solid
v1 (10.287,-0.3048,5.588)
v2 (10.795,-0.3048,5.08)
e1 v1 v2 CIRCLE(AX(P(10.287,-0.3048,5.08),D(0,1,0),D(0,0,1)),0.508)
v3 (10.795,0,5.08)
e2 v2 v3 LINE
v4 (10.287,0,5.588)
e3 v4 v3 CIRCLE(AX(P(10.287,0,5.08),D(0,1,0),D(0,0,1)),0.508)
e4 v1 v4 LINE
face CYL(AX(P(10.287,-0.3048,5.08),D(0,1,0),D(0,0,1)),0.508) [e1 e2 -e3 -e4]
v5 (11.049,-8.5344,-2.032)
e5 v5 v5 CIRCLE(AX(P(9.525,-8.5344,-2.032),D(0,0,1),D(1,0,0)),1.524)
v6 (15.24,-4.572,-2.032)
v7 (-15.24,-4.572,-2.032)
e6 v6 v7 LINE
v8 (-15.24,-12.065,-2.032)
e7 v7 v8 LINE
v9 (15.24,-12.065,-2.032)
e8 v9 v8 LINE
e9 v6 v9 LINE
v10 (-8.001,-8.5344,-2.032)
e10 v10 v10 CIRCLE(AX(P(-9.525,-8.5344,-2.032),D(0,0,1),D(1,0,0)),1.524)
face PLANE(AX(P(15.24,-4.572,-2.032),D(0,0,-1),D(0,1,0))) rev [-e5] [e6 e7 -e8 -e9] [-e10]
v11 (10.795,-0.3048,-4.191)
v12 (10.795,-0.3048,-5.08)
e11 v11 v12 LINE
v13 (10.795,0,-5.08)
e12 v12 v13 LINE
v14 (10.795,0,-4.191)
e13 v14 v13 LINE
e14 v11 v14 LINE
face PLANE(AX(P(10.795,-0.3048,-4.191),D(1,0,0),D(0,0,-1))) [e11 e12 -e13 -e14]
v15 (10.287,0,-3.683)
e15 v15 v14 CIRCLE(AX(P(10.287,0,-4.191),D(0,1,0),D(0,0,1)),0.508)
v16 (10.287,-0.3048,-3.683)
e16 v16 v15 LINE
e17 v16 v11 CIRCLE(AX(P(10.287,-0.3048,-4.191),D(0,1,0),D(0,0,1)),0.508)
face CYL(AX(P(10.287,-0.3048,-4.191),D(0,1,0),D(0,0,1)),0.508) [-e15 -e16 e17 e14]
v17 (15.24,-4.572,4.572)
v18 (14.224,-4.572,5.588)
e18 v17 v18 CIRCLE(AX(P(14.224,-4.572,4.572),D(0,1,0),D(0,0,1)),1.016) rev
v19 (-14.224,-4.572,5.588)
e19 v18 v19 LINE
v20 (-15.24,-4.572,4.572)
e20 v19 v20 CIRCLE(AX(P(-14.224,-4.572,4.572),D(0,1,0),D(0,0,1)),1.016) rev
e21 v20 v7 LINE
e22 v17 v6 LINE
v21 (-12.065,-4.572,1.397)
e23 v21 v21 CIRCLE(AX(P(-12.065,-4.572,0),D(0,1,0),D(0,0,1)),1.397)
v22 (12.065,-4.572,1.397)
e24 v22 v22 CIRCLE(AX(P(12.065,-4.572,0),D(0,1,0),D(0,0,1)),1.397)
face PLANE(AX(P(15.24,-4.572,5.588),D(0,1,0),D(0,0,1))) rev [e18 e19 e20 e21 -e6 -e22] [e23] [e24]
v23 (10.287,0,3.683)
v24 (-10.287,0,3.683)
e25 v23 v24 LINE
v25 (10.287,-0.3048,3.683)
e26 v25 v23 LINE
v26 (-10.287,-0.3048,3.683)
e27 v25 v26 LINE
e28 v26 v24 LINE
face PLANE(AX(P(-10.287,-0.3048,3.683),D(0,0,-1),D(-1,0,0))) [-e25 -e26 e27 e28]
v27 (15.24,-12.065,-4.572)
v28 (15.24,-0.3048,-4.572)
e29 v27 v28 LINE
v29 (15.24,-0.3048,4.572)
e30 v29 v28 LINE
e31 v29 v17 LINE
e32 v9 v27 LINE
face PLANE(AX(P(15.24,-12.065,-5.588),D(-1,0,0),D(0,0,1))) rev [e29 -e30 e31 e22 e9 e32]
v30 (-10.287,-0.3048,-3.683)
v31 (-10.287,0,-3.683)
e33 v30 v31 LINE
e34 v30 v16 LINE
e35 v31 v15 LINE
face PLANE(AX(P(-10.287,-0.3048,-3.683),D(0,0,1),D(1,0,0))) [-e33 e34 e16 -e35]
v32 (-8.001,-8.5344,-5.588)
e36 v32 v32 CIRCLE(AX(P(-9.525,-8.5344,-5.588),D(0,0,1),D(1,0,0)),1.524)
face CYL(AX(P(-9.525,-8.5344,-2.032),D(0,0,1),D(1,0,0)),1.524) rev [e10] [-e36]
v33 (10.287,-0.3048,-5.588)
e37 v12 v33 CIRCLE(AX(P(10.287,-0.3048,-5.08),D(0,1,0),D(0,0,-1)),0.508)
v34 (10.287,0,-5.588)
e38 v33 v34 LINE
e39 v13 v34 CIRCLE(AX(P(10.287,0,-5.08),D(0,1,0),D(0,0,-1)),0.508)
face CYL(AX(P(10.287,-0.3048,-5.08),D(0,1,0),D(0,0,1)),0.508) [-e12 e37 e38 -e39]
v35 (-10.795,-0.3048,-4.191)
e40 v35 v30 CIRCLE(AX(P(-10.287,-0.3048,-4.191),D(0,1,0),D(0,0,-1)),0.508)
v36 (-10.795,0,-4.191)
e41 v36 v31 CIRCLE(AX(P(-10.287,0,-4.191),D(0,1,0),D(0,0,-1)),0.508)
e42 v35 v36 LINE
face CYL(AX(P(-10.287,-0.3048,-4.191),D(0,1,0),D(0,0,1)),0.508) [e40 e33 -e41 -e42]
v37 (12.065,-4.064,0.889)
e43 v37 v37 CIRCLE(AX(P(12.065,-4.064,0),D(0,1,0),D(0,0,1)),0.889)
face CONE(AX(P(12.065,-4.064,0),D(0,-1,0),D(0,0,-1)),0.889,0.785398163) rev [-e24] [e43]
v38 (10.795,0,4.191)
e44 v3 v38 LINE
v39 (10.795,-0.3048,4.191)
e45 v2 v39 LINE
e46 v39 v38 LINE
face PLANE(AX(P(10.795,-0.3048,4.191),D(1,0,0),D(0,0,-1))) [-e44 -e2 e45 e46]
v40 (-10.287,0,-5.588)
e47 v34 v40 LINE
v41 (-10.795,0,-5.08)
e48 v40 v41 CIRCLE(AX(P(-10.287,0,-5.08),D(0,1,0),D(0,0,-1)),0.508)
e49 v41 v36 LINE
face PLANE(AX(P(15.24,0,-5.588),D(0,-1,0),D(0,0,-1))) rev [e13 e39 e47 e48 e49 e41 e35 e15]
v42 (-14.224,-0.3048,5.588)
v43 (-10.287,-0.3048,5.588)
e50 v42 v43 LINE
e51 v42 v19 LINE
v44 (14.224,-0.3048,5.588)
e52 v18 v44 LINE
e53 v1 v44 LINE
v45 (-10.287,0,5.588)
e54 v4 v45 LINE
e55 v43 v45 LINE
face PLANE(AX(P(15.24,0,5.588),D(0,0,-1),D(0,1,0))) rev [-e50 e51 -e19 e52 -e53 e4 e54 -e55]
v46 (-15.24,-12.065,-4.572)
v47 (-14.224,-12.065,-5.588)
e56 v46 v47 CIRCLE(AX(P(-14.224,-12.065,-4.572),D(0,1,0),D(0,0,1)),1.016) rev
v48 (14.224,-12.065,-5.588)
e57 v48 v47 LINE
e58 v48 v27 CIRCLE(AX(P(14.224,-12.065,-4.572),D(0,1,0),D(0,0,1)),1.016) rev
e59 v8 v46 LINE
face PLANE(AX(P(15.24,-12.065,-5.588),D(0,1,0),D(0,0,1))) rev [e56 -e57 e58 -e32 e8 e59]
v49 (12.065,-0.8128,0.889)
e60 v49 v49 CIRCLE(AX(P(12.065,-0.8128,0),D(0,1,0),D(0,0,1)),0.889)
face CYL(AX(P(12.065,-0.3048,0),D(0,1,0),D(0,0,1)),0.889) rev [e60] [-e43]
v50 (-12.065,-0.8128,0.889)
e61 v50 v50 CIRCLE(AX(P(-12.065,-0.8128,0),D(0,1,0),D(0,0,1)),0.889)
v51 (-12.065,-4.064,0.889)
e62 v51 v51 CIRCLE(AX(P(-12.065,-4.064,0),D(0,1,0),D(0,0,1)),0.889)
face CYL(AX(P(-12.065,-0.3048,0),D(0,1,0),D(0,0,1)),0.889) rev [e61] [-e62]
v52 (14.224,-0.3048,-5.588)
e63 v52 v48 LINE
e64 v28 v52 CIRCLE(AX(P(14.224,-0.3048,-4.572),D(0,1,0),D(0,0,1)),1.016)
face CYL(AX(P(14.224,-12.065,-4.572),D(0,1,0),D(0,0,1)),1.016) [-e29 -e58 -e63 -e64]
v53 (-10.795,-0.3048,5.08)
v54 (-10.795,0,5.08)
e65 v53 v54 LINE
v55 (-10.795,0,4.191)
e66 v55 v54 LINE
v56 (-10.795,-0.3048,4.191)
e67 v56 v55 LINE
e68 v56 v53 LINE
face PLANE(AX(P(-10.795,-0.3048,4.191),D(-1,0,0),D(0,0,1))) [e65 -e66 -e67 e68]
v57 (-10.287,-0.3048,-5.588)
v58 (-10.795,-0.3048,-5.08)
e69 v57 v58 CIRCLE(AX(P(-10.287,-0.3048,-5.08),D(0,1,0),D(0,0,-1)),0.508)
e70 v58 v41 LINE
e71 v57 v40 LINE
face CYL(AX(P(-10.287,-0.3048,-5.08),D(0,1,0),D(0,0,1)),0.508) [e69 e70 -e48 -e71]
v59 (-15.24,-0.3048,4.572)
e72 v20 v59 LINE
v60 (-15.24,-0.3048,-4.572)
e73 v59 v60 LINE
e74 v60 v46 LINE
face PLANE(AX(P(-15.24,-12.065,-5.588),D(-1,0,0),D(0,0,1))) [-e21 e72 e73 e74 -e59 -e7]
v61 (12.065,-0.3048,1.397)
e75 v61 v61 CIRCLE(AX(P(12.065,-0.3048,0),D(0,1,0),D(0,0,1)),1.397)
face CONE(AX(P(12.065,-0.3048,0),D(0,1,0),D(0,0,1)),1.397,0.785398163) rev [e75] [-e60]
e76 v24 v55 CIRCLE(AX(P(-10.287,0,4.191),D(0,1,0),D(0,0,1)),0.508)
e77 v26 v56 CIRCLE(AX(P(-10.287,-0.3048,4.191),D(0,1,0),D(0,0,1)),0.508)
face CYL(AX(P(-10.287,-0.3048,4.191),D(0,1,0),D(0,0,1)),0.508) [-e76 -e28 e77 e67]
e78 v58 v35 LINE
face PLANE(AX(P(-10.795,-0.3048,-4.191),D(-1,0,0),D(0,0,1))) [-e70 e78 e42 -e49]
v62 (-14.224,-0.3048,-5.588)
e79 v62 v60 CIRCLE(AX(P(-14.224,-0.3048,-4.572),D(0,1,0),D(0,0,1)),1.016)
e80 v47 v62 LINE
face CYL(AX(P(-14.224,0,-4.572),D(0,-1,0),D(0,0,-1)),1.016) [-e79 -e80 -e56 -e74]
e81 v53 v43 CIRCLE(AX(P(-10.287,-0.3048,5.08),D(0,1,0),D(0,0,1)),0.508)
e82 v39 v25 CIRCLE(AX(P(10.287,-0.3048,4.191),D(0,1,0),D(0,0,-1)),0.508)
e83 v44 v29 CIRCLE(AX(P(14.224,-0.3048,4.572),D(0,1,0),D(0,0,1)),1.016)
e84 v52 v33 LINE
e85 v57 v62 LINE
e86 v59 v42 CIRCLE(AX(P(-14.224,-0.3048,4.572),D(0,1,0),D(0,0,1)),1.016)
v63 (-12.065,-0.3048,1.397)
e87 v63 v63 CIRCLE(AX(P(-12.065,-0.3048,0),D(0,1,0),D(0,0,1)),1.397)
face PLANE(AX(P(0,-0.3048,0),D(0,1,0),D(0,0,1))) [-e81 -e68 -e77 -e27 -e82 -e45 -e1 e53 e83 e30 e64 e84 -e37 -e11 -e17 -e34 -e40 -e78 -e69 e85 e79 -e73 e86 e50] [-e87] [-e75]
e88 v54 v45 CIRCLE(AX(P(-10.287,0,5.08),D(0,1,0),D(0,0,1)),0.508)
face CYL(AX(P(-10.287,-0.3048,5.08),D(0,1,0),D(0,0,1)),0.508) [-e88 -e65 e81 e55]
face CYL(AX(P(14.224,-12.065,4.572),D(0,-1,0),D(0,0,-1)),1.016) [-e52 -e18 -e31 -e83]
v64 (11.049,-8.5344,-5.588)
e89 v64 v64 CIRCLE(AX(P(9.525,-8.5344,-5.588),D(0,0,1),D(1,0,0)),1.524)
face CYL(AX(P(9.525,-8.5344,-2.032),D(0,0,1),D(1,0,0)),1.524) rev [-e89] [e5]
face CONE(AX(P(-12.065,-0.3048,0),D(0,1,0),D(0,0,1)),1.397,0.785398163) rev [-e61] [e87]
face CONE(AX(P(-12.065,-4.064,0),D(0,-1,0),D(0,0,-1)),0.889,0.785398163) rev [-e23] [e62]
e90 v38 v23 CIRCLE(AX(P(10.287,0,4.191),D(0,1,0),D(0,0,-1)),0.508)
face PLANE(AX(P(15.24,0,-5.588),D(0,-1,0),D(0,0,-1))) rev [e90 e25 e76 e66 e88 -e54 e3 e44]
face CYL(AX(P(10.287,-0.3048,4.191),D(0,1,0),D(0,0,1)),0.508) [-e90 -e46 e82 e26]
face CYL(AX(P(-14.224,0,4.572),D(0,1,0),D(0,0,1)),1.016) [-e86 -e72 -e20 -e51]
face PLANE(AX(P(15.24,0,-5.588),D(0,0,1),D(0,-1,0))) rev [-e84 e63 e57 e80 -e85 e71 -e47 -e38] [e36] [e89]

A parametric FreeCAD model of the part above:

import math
import FreeCAD as App
import Part
import Sketcher

V = App.Vector
Q = App.Units.Quantity


def edges_at(feature, points):
    """Names of the edges that pass closest to the given points."""
    edges = feature.Shape.Edges
    near = lambda p: min(range(len(edges)), key=lambda i: edges[i].distToShape(Part.Vertex(*p))[0])
    return sorted({f"Edge{near(p) + 1}" for p in points})


def add_polygon(sketch, points):
    """Adds a closed chain of lines whose ends are joined by coincident constraints."""
    first, n = sketch.GeometryCount, len(points)
    for a, b in zip(points, points[1:] + points[:1]):
        sketch.addGeometry(Part.LineSegment(App.Vector(*a, 0), App.Vector(*b, 0)), False)
    for i in range(n):
        sketch.addConstraint(Sketcher.Constraint("Coincident", first + i, 2, first + (i + 1) % n, 1))

doc = App.newDocument("Part")
body = doc.addObject("PartDesign::Body", "Body")

sketch1 = body.newObject("Sketcher::SketchObject", "Sketch")
sketch1.AttachmentSupport = (doc.getObject("YZ_Plane"), [""])
sketch1.MapMode = "FlatFace"
add_polygon(sketch1, [(0, -5.6), (0, 5.6), (-4.6, 5.6), (-4.6, -2), (-12.1, -2), (-12.1, -5.6)])
sketch1.addConstraint([
    Sketcher.Constraint("Vertical", 0),
    Sketcher.Constraint("Horizontal", 1),
    Sketcher.Constraint("Vertical", 2),
    Sketcher.Constraint("Horizontal", 3),
    Sketcher.Constraint("Vertical", 4),
    Sketcher.Constraint("Horizontal", 5),
    Sketcher.Constraint("Symmetric", 0, 2, 5, 2, -1, 1),
    Sketcher.Constraint("DistanceY", 2, 2, 2, 1, Q("0.3 in")),
    Sketcher.Constraint("DistanceX", 1, 2, 1, 1, Q("0.18 in")),
    Sketcher.Constraint("DistanceY", 0, 1, 0, 2, Q("0.44 in")),
    Sketcher.Constraint("DistanceX", 3, 2, 3, 1, Q("0.295 in")),
])
pad1 = body.newObject("PartDesign::Pad", "Pad")
pad1.Profile = sketch1
pad1.Length = Q("1.2 in")
pad1.Midplane = True

sketch2 = body.newObject("Sketcher::SketchObject", "Sketch001")
sketch2.AttachmentSupport = (doc.getObject("XZ_Plane"), [""])
sketch2.MapMode = "FlatFace"
add_polygon(sketch2, [(-19.7, -10.1), (-19.7, 10.1), (19.7, 10.1), (19.7, -10.1)])
sketch2.addGeometry(Part.ArcOfCircle(Part.Circle(V(10.3, 4.2, 0), V(0, 0, 1), 0.5), math.radians(-90), math.radians(0)), False)
sketch2.addGeometry(Part.LineSegment(V(10.8, 4.2, 0), V(10.8, 5.1, 0)), False)
sketch2.addGeometry(Part.ArcOfCircle(Part.Circle(V(10.3, 5.1, 0), V(0, 0, 1), 0.5), math.radians(0), math.radians(90)), False)
sketch2.addGeometry(Part.LineSegment(V(10.3, 5.6, 0), V(-10.3, 5.6, 0)), False)
sketch2.addGeometry(Part.ArcOfCircle(Part.Circle(V(-10.3, 5.1, 0), V(0, 0, 1), 0.5), math.radians(90), math.radians(180)), False)
sketch2.addGeometry(Part.LineSegment(V(-10.8, 5.1, 0), V(-10.8, 4.2, 0)), False)
sketch2.addGeometry(Part.ArcOfCircle(Part.Circle(V(-10.3, 4.2, 0), V(0, 0, 1), 0.5), math.radians(180), math.radians(270)), False)
sketch2.addGeometry(Part.LineSegment(V(-10.3, 3.7, 0), V(10.3, 3.7, 0)), False)
sketch2.addGeometry(Part.LineSegment(V(10.3, -3.7, 0), V(-10.3, -3.7, 0)), False)
sketch2.addGeometry(Part.ArcOfCircle(Part.Circle(V(-10.3, -4.2, 0), V(0, 0, 1), 0.5), math.radians(90), math.radians(180)), False)
sketch2.addGeometry(Part.LineSegment(V(-10.8, -4.2, 0), V(-10.8, -5.1, 0)), False)
sketch2.addGeometry(Part.ArcOfCircle(Part.Circle(V(-10.3, -5.1, 0), V(0, 0, 1), 0.5), math.radians(180), math.radians(270)), False)
sketch2.addGeometry(Part.LineSegment(V(-10.3, -5.6, 0), V(10.3, -5.6, 0)), False)
sketch2.addGeometry(Part.ArcOfCircle(Part.Circle(V(10.3, -5.1, 0), V(0, 0, 1), 0.5), math.radians(-90), math.radians(0)), False)
sketch2.addGeometry(Part.LineSegment(V(10.8, -5.1, 0), V(10.8, -4.2, 0)), False)
sketch2.addGeometry(Part.ArcOfCircle(Part.Circle(V(10.3, -4.2, 0), V(0, 0, 1), 0.5), math.radians(0), math.radians(90)), False)
sketch2.addConstraint([
    Sketcher.Constraint("Tangent", 4, 2, 5, 1),
    Sketcher.Constraint("Tangent", 5, 2, 6, 1),
    Sketcher.Constraint("Tangent", 6, 2, 7, 1),
    Sketcher.Constraint("Tangent", 7, 2, 8, 1),
    Sketcher.Constraint("Tangent", 8, 2, 9, 1),
    Sketcher.Constraint("Tangent", 9, 2, 10, 1),
    Sketcher.Constraint("Tangent", 10, 2, 11, 1),
    Sketcher.Constraint("Tangent", 11, 2, 4, 1),
    Sketcher.Constraint("Tangent", 12, 2, 13, 1),
    Sketcher.Constraint("Tangent", 13, 2, 14, 1),
    Sketcher.Constraint("Tangent", 14, 2, 15, 1),
    Sketcher.Constraint("Tangent", 15, 2, 16, 1),
    Sketcher.Constraint("Tangent", 16, 2, 17, 1),
    Sketcher.Constraint("Tangent", 17, 2, 18, 1),
    Sketcher.Constraint("Tangent", 18, 2, 19, 1),
    Sketcher.Constraint("Tangent", 19, 2, 12, 1),
    Sketcher.Constraint("Vertical", 0),
    Sketcher.Constraint("Horizontal", 1),
    Sketcher.Constraint("Vertical", 2),
    Sketcher.Constraint("Horizontal", 3),
    Sketcher.Constraint("Vertical", 5),
    Sketcher.Constraint("Horizontal", 7),
    Sketcher.Constraint("Vertical", 9),
    Sketcher.Constraint("Horizontal", 11),
    Sketcher.Constraint("Horizontal", 12),
    Sketcher.Constraint("Vertical", 14),
    Sketcher.Constraint("Horizontal", 16),
    Sketcher.Constraint("Vertical", 18),
    Sketcher.Constraint("Equal", 4, 6),
    Sketcher.Constraint("Equal", 6, 8),
    Sketcher.Constraint("Equal", 8, 10),
    Sketcher.Constraint("Equal", 10, 13),
    Sketcher.Constraint("Equal", 13, 15),
    Sketcher.Constraint("Equal", 15, 17),
    Sketcher.Constraint("Equal", 17, 19),
    Sketcher.Constraint("Symmetric", 4, 3, 13, 3, -1, 1),
    Sketcher.Constraint("Symmetric", 8, 3, 17, 3, -1, 1),
    Sketcher.Constraint("Symmetric", 0, 2, 2, 2, -1, 1),
    Sketcher.Constraint("Vertical", 10, 3, 13, 3),
    Sketcher.Constraint("Radius", 4, Q("0.02 in")),
    Sketcher.Constraint("DistanceX", 7, 2, 7, 1, Q("0.81 in")),
    Sketcher.Constraint("DistanceY", -1, 1, 6, 3, Q("0.2 in")),
    Sketcher.Constraint("DistanceY", 5, 1, 5, 2, Q("0.035 in")),
    Sketcher.Constraint("DistanceX", 1, 1, 1, 2, 39.406),
    Sketcher.Constraint("DistanceY", 0, 1, 0, 2, 20.102),
])
pocket1 = body.newObject("PartDesign::Pocket", "Pocket")
pocket1.Profile = sketch2
pocket1.Length = Q("0.012 in")
pocket1.Reversed = True

sketch3 = body.newObject("Sketcher::SketchObject", "Sketch002")
sketch3.AttachmentSupport = (doc.getObject("YZ_Plane"), [""])
sketch3.MapMode = "FlatFace"
sketch3.AttachmentOffset = App.Placement(V(0, 0, -0.475 * 25.4), App.Rotation())
add_polygon(sketch3, [(-4.6, 0), (-0.3, 0), (-0.3, 1.4), (-0.8, 0.9), (-4.1, 0.9), (-4.6, 1.4)])
sketch3.addConstraint([
    Sketcher.Constraint("Horizontal", 0),
    Sketcher.Constraint("Vertical", 1),
    Sketcher.Constraint("Horizontal", 3),
    Sketcher.Constraint("Vertical", 5),
    Sketcher.Constraint("PointOnObject", 0, 2, -1),
    Sketcher.Constraint("Perpendicular", 2, 4),
    Sketcher.Constraint("Horizontal", 1, 2, 4, 2),
    Sketcher.Constraint("Equal", 2, 4),
    Sketcher.Constraint("DistanceX", 0, 1, 0, 2, Q("0.168 in")),
    Sketcher.Constraint("DistanceX", 3, 2, 3, 1, Q("0.128 in")),
    Sketcher.Constraint("DistanceY", 1, 1, 1, 2, Q("0.055 in")),
    Sketcher.Constraint("DistanceX", 3, 2, -1, 1, Q("0.16 in")),
])
groove = body.newObject("PartDesign::Groove", "Groove")
groove.Profile = sketch3
groove.ReferenceAxis = (sketch3, ["H_Axis"])
groove.Angle = 360
doc.recompute()

linearpattern = body.newObject("PartDesign::LinearPattern", "LinearPattern")
linearpattern.Originals = [groove]
linearpattern.Direction = (doc.getObject("X_Axis"), [""])
linearpattern.Mode = "offset"
linearpattern.Offset = Q("0.95 in")
linearpattern.Occurrences = 2
body.Tip = linearpattern

sketch4 = body.newObject("Sketcher::SketchObject", "Sketch003")
sketch4.AttachmentSupport = (doc.getObject("XY_Plane"), [""])
sketch4.MapMode = "FlatFace"
sketch4.AttachmentOffset = App.Placement(V(0, 0, -0.08 * 25.4), App.Rotation())
sketch4.addGeometry([
    Part.Circle(V(-9.5, -8.5, 0), V(0, 0, 1), 1.5),
    Part.Circle(V(9.5, -8.5, 0), V(0, 0, 1), 1.5),
], False)
sketch4.addConstraint([
    Sketcher.Constraint("Equal", 0, 1),
    Sketcher.Constraint("Symmetric", 0, 3, 1, 3, -2),
    Sketcher.Constraint("Diameter", 0, Q("0.12 in")),
    Sketcher.Constraint("DistanceX", 0, 3, 1, 3, Q("0.75 in")),
    Sketcher.Constraint("DistanceY", 0, 3, -1, 1, Q("0.336 in")),
])
doc.recompute()
hole = body.newObject("PartDesign::Hole", "Hole")
hole.Profile = sketch4
hole.ThreadType = "None"
hole.Diameter = Q("0.12 in")
hole.DepthType = "ThroughAll"
doc.recompute()

fillet = body.newObject("PartDesign::Fillet", "Fillet")
fillet.Base = (hole, edges_at(hole, [
    (-15.24, -2.438, 5.588),
    (15.24, -2.438, 5.588),
    (15.24, -6.185, -5.588),
    (-15.24, -6.185, -5.588),
]))
fillet.Radius = Q("0.04 in")

doc.recompute()
